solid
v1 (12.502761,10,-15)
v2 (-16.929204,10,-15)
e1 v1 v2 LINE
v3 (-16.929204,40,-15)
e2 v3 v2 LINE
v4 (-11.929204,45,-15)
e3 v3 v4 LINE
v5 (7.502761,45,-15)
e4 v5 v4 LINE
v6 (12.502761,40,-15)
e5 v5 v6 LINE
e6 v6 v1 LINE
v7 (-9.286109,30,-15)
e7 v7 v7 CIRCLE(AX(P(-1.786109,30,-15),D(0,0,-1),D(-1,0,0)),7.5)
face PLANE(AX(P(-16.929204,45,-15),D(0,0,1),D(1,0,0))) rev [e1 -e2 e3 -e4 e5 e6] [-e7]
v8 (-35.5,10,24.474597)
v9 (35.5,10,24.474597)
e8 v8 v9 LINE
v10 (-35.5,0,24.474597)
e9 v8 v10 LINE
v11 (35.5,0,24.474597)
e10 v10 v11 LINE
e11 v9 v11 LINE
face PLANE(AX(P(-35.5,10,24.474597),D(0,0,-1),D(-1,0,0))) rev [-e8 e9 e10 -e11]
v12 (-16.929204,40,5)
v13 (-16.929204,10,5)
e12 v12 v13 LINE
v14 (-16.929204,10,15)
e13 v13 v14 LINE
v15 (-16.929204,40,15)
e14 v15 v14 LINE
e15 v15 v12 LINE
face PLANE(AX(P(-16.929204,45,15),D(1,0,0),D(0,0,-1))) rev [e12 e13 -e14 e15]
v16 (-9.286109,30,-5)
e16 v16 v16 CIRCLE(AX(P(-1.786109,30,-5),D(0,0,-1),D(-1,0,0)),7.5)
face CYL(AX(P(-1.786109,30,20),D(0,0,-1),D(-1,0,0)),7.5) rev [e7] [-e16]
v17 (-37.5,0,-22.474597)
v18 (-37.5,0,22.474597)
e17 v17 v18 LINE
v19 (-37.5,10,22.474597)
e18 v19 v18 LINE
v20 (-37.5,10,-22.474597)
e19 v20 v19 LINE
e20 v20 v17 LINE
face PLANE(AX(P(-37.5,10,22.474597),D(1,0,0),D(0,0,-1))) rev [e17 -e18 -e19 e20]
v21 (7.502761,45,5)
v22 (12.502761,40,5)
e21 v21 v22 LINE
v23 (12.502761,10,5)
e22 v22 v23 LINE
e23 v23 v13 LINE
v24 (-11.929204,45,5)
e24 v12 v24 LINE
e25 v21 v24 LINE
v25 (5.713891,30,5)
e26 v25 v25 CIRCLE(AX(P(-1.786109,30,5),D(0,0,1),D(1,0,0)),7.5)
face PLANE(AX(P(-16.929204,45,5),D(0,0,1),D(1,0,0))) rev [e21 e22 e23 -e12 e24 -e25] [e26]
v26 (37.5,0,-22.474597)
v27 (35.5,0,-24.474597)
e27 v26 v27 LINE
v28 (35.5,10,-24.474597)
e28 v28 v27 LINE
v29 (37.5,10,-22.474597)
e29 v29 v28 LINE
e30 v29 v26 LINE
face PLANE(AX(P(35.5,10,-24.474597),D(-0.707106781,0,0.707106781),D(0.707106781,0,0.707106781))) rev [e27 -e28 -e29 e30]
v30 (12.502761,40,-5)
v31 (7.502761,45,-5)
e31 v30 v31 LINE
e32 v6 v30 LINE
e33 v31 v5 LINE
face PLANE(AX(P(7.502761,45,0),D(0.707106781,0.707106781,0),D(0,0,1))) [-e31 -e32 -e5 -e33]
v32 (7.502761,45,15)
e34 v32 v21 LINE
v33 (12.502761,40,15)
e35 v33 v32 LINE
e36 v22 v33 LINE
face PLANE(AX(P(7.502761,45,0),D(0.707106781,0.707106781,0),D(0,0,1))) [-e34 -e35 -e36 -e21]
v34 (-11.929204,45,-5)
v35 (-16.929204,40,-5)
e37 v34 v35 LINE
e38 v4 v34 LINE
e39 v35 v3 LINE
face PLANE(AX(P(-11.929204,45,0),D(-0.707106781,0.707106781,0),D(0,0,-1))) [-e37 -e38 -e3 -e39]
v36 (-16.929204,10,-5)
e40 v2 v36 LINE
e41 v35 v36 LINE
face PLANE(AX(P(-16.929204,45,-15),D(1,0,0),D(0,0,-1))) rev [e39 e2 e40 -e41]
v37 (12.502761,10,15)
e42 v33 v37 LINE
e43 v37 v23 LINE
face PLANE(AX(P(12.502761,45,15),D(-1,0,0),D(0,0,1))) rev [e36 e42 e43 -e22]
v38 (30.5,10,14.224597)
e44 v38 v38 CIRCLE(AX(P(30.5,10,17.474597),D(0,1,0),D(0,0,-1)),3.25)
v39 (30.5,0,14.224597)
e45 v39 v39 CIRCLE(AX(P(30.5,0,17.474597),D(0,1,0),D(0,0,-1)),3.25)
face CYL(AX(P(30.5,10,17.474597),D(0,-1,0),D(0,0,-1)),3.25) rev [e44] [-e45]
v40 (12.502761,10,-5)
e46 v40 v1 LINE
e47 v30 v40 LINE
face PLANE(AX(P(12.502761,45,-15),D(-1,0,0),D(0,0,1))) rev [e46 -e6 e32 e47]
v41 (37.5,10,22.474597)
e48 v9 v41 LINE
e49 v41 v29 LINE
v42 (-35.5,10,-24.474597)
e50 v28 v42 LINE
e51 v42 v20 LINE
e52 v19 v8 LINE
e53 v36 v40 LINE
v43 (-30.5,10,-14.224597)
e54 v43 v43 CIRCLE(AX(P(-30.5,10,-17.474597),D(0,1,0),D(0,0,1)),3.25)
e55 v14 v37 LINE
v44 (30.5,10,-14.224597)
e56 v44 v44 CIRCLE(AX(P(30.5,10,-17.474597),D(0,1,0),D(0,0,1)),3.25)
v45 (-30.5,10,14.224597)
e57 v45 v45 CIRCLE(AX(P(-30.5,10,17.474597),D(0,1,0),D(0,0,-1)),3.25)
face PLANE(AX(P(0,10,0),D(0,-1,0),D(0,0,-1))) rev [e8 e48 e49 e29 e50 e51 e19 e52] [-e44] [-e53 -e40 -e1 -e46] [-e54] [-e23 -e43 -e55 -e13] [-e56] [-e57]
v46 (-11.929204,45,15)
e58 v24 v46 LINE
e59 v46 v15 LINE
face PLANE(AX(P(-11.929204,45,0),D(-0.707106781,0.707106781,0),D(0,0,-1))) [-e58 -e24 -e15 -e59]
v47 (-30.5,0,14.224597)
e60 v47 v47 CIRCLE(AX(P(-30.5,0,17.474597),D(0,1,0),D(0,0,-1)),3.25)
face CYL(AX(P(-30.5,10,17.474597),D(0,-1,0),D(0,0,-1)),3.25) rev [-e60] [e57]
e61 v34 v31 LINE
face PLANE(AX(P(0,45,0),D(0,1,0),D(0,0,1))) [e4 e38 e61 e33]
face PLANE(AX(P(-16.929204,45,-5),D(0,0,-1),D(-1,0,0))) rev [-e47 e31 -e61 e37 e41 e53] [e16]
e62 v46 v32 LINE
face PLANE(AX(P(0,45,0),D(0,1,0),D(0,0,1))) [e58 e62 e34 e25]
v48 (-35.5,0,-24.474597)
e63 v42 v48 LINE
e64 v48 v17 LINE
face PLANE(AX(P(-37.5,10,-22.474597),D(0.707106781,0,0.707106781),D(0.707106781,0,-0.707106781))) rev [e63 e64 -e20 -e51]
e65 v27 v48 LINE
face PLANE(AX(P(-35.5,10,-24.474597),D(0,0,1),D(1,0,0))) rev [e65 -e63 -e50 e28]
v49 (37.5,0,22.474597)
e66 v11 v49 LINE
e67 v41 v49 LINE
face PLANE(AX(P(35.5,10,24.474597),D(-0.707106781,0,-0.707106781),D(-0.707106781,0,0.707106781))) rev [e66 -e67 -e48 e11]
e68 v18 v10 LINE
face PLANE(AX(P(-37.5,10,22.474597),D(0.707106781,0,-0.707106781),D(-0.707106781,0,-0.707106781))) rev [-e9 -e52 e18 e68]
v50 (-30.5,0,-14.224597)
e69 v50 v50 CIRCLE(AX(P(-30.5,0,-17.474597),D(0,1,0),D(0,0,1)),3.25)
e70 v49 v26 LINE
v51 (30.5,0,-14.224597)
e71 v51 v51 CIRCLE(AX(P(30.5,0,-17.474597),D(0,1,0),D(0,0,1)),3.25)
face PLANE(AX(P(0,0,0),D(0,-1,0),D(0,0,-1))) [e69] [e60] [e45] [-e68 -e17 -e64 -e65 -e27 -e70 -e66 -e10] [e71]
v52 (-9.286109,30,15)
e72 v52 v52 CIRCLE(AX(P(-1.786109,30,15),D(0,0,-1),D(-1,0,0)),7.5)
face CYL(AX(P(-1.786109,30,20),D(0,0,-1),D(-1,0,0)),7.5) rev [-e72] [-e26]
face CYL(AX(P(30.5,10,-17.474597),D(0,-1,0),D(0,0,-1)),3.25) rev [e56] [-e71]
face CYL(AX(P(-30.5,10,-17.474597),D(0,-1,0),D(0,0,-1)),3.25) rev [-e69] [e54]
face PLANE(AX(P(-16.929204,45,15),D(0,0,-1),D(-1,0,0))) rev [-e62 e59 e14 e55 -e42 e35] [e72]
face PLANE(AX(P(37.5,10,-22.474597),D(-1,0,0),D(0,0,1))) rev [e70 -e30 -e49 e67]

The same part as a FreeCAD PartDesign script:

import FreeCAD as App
import Part
import Sketcher
from FreeCAD import Vector


def edges_at(feature, points):
    """Names of the edges that pass closest to the given points."""
    edges = feature.Shape.Edges
    near = lambda p: min(range(len(edges)), key=lambda i: edges[i].distToShape(Part.Vertex(*p))[0])
    return sorted({f"Edge{near(p) + 1}" for p in points})

doc = App.newDocument("Part")
params = doc.addObject("Spreadsheet::Sheet", "Params")
for row, (alias, value) in enumerate([
    ("sketch1_diameter", "6.5 mm"),
    ("sketch1_width", "71 mm"),
    ("pad1_length", "10 mm"),
    ("sketch2_height", "10 mm"),
    ("pad2_length", "35 mm"),
    ("sketch3_diameter", "15 mm"),
    ("pocket1_length", "35 mm"),
    ("chamfer_size", "5 mm"),
], start=1):
    params.set(f"A{row}", alias)
    params.set(f"B{row}", "=" + value)
    params.setAlias(f"B{row}", alias)

body = doc.addObject("PartDesign::Body", "Body")

# Sketch on XZ plane
sketch1 = doc.addObject("Sketcher::SketchObject", "Sketch")
body.addObject(sketch1)
sketch1.AttachmentSupport = (doc.XZ_Plane, [""])
sketch1.MapMode = "FlatFace"
sketch1.addGeometry(Part.LineSegment(Vector(-37.5, -22.5, 0), Vector(-37.5, 22.5, 0)), False)
sketch1.addGeometry(Part.LineSegment(Vector(-37.5, 22.5, 0), Vector(-35.5, 24.5, 0)), False)
sketch1.addGeometry(Part.LineSegment(Vector(-35.5, 24.5, 0), Vector(35.5, 24.5, 0)), False)
sketch1.addGeometry(Part.LineSegment(Vector(35.5, 24.5, 0), Vector(37.5, 22.5, 0)), False)
sketch1.addGeometry(Part.LineSegment(Vector(37.5, 22.5, 0), Vector(37.5, -22.5, 0)), False)
sketch1.addGeometry(Part.LineSegment(Vector(37.5, -22.5, 0), Vector(35.5, -24.5, 0)), False)
sketch1.addGeometry(Part.LineSegment(Vector(35.5, -24.5, 0), Vector(-35.5, -24.5, 0)), False)
sketch1.addGeometry(Part.LineSegment(Vector(-35.5, -24.5, 0), Vector(-37.5, -22.5, 0)), False)
sketch1.addGeometry(Part.Circle(Vector(30.5, 17.5, 0), Vector(0, 0, 1), 3.2), False)
sketch1.addGeometry(Part.Circle(Vector(-30.5, 17.5, 0), Vector(0, 0, 1), 3.2), False)
sketch1.addGeometry(Part.Circle(Vector(30.5, -17.5, 0), Vector(0, 0, 1), 3.2), False)
sketch1.addGeometry(Part.Circle(Vector(-30.5, -17.5, 0), Vector(0, 0, 1), 3.2), False)
sketch1.addConstraint(Sketcher.Constraint("Coincident", 0, 2, 1, 1))
sketch1.addConstraint(Sketcher.Constraint("Coincident", 1, 2, 2, 1))
sketch1.addConstraint(Sketcher.Constraint("Coincident", 2, 2, 3, 1))
sketch1.addConstraint(Sketcher.Constraint("Coincident", 3, 2, 4, 1))
sketch1.addConstraint(Sketcher.Constraint("Coincident", 4, 2, 5, 1))
sketch1.addConstraint(Sketcher.Constraint("Coincident", 5, 2, 6, 1))
sketch1.addConstraint(Sketcher.Constraint("Coincident", 6, 2, 7, 1))
sketch1.addConstraint(Sketcher.Constraint("Coincident", 7, 2, 0, 1))
sketch1.addConstraint(Sketcher.Constraint("Vertical", 0))
sketch1.addConstraint(Sketcher.Constraint("Horizontal", 2))
sketch1.addConstraint(Sketcher.Constraint("Vertical", 4))
sketch1.addConstraint(Sketcher.Constraint("Horizontal", 6))
sketch1.addConstraint(Sketcher.Constraint("Equal", 8, 9))
sketch1.addConstraint(Sketcher.Constraint("Equal", 9, 10))
sketch1.addConstraint(Sketcher.Constraint("Equal", 10, 11))
sketch1.addConstraint(Sketcher.Constraint("Symmetric", 9, 3, 10, 3, -1, 1))
sketch1.addConstraint(Sketcher.Constraint("Symmetric", 8, 3, 11, 3, -1, 1))
sketch1.addConstraint(Sketcher.Constraint("Symmetric", 0, 2, 4, 2, -1, 1))
sketch1.addConstraint(Sketcher.Constraint("Symmetric", 1, 2, 5, 2, -1, 1))
sketch1.addConstraint(Sketcher.Constraint("Symmetric", 8, 3, 9, 3, -2))
sketch1.addConstraint(Sketcher.Constraint("Perpendicular", 1, 3))
sketch1.addConstraint(Sketcher.Constraint("Perpendicular", 5, 7))
sketch1.addConstraint(Sketcher.Constraint("Horizontal", 0, 2, 3, 2))
sketch1.addConstraint(Sketcher.Constraint("Horizontal", 4, 2, 7, 2))
sketch1.addConstraint(Sketcher.Constraint("Vertical", 2, 2, 5, 2))
sketch1.addConstraint(Sketcher.Constraint("Diameter", 8, 6.5))
sketch1.addConstraint(Sketcher.Constraint("DistanceX", 2, 1, 2, 2, 71.0))
sketch1.addConstraint(Sketcher.Constraint("DistanceX", 9, 3, 8, 3, 61.0))
sketch1.addConstraint(Sketcher.Constraint("DistanceX", 0, 2, 9, 3, 7.0))
sketch1.addConstraint(Sketcher.Constraint("DistanceY", 9, 3, 0, 2, 5.0))
sketch1.addConstraint(Sketcher.Constraint("DistanceY", 0, 1, 0, 2, 44.949193))
sketch1.setExpression("Constraints[25]", "Params.sketch1_diameter")
sketch1.setExpression("Constraints[26]", "Params.sketch1_width")
pad1 = doc.addObject("PartDesign::Pad", "Pad")
body.addObject(pad1)
pad1.Profile = sketch1
pad1.setExpression("Length", "Params.pad1_length")
pad1.Reversed = True

# Sketch on XZ plane
sketch2 = doc.addObject("Sketcher::SketchObject", "Sketch001")
body.addObject(sketch2)
sketch2.AttachmentSupport = (doc.XZ_Plane, [""])
sketch2.MapMode = "FlatFace"
sketch2.AttachmentOffset = App.Placement(Vector(0, 0, -10), App.Rotation())
sketch2.addGeometry(Part.LineSegment(Vector(-17, 5, 0), Vector(-17, 15, 0)), False)
sketch2.addGeometry(Part.LineSegment(Vector(-17, 15, 0), Vector(13, 15, 0)), False)
sketch2.addGeometry(Part.LineSegment(Vector(13, 15, 0), Vector(13, 5, 0)), False)
sketch2.addGeometry(Part.LineSegment(Vector(13, 5, 0), Vector(-17, 5, 0)), False)
sketch2.addGeometry(Part.LineSegment(Vector(-17, -15, 0), Vector(-17, -5, 0)), False)
sketch2.addGeometry(Part.LineSegment(Vector(-17, -5, 0), Vector(13, -5, 0)), False)
sketch2.addGeometry(Part.LineSegment(Vector(13, -5, 0), Vector(13, -15, 0)), False)
sketch2.addGeometry(Part.LineSegment(Vector(13, -15, 0), Vector(-17, -15, 0)), False)
sketch2.addConstraint(Sketcher.Constraint("Coincident", 0, 2, 1, 1))
sketch2.addConstraint(Sketcher.Constraint("Coincident", 1, 2, 2, 1))
sketch2.addConstraint(Sketcher.Constraint("Coincident", 2, 2, 3, 1))
sketch2.addConstraint(Sketcher.Constraint("Coincident", 3, 2, 0, 1))
sketch2.addConstraint(Sketcher.Constraint("Coincident", 4, 2, 5, 1))
sketch2.addConstraint(Sketcher.Constraint("Coincident", 5, 2, 6, 1))
sketch2.addConstraint(Sketcher.Constraint("Coincident", 6, 2, 7, 1))
sketch2.addConstraint(Sketcher.Constraint("Coincident", 7, 2, 4, 1))
sketch2.addConstraint(Sketcher.Constraint("Vertical", 0))
sketch2.addConstraint(Sketcher.Constraint("Horizontal", 1))
sketch2.addConstraint(Sketcher.Constraint("Vertical", 2))
sketch2.addConstraint(Sketcher.Constraint("Horizontal", 3))
sketch2.addConstraint(Sketcher.Constraint("Vertical", 4))
sketch2.addConstraint(Sketcher.Constraint("Horizontal", 5))
sketch2.addConstraint(Sketcher.Constraint("Vertical", 6))
sketch2.addConstraint(Sketcher.Constraint("Horizontal", 7))
sketch2.addConstraint(Sketcher.Constraint("Symmetric", 3, 2, 4, 2, -1))
sketch2.addConstraint(Sketcher.Constraint("Symmetric", 1, 2, 6, 2, -1))
sketch2.addConstraint(Sketcher.Constraint("DistanceY", 0, 1, 0, 2, 10.0))
sketch2.addConstraint(Sketcher.Constraint("DistanceY", -1, 1, 0, 2, 15.0))
sketch2.addConstraint(Sketcher.Constraint("DistanceX", 1, 1, 1, 2, 29.431965))
sketch2.addConstraint(Sketcher.Constraint("DistanceX", -1, 1, 1, 2, 12.502761))
sketch2.setExpression("Constraints[18]", "Params.sketch2_height")
pad2 = doc.addObject("PartDesign::Pad", "Pad001")
body.addObject(pad2)
pad2.Profile = sketch2
pad2.setExpression("Length", "Params.pad2_length")
pad2.Reversed = True

# Sketch on XY plane
sketch3 = doc.addObject("Sketcher::SketchObject", "Sketch002")
body.addObject(sketch3)
sketch3.AttachmentSupport = (doc.XY_Plane, [""])
sketch3.MapMode = "FlatFace"
sketch3.AttachmentOffset = App.Placement(Vector(0, 0, -15), App.Rotation())
sketch3.addGeometry(Part.Circle(Vector(-2, 30, 0), Vector(0, 0, 1), 8), False)
sketch3.addConstraint(Sketcher.Constraint("Diameter", 0, 15.0))
sketch3.addConstraint(Sketcher.Constraint("DistanceY", -1, 1, 0, 3, 30.0))
sketch3.addConstraint(Sketcher.Constraint("DistanceX", 0, 3, -1, 1, 1.786109))
sketch3.setExpression("Constraints[0]", "Params.sketch3_diameter")
pocket1 = doc.addObject("PartDesign::Pocket", "Pocket")
body.addObject(pocket1)
pocket1.Profile = sketch3
pocket1.setExpression("Length", "Params.pocket1_length")
pocket1.Reversed = True
doc.recompute()

chamfer = doc.addObject("PartDesign::Chamfer", "Chamfer")
body.addObject(chamfer)
chamfer.Base = (pocket1, edges_at(pocket1, [
    (-16.929, 45, -10),
    (12.503, 45, -10),
    (12.503, 45, 10),
    (-16.929, 45, 10),
]))
chamfer.setExpression("Size", "Params.chamfer_size")

doc.recompute()
